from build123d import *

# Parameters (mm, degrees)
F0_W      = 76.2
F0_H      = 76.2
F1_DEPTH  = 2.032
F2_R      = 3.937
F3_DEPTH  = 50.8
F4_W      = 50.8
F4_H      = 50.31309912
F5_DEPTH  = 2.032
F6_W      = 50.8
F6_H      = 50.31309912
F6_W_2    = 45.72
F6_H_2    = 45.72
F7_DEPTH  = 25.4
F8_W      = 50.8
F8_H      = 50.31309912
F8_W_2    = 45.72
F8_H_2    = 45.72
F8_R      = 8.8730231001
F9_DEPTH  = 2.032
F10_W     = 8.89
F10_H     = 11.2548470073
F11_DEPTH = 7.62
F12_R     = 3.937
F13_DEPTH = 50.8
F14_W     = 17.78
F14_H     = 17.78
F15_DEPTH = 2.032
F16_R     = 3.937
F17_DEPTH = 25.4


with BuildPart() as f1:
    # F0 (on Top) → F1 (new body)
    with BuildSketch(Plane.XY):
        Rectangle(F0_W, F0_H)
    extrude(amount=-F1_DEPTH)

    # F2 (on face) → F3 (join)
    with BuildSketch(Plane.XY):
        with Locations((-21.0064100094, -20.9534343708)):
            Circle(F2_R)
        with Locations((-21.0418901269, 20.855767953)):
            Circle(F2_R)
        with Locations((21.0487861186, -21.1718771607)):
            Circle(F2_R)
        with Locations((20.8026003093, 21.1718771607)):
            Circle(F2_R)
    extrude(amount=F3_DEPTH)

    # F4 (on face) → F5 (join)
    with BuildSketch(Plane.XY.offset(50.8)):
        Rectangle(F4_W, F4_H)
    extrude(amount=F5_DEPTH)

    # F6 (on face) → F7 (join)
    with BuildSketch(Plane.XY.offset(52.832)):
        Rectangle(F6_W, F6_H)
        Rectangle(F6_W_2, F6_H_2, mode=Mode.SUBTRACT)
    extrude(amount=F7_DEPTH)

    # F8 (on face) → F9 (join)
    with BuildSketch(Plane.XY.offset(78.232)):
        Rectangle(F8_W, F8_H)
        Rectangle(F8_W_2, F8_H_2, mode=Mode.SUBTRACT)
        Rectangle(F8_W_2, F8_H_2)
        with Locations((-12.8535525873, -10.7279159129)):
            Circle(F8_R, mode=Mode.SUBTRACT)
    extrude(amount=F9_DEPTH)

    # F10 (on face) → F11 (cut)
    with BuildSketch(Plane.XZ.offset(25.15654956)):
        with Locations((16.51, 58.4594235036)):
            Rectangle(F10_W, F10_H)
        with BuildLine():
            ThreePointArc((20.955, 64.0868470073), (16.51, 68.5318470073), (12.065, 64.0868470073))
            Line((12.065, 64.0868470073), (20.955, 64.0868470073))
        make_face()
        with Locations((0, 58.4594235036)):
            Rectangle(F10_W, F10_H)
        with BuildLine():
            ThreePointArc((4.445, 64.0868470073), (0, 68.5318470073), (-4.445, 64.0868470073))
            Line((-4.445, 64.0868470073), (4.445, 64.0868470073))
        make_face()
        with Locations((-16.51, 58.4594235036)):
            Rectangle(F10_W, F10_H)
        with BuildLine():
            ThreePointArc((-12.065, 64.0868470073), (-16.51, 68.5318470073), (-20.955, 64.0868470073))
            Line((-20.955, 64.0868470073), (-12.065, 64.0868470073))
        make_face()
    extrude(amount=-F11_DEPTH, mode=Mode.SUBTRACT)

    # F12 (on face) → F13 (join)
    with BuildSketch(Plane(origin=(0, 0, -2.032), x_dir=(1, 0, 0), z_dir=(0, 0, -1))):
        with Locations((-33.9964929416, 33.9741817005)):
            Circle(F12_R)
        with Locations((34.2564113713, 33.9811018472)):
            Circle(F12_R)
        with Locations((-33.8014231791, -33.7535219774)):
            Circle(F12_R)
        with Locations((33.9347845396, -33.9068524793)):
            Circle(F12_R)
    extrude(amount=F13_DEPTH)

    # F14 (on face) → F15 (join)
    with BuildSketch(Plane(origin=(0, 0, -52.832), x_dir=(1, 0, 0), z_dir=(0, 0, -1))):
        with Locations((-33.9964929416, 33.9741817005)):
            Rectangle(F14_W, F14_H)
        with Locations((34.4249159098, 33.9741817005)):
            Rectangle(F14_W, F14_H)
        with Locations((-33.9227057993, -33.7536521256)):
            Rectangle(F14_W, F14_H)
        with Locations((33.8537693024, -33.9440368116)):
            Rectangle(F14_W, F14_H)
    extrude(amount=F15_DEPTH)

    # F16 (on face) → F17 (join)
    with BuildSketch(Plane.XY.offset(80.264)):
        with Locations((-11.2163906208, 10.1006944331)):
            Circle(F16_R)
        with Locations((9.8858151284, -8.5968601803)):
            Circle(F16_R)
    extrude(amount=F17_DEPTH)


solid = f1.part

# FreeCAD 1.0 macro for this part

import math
import FreeCAD as App
import Part
import Sketcher
Q = App.Units.Quantity


def add_polygon(sketch, points):
    """Adds a closed chain of lines whose ends are joined by coincident constraints."""
    first, n = sketch.GeometryCount, len(points)
    for a, b in zip(points, points[1:] + points[:1]):
        sketch.addGeometry(Part.LineSegment(App.Vector(*a, 0), App.Vector(*b, 0)), False)
    for i in range(n):
        sketch.addConstraint(Sketcher.Constraint("Coincident", first + i, 2, first + (i + 1) % n, 1))

doc = App.newDocument("Part")
params = doc.addObject("Spreadsheet::Sheet", "Params")
for row, (alias, value) in enumerate([
    ("sketch1_width", "3 in"),
    ("pad1_length", "0.08 in"),
    ("sketch2_diameter", "0.31 in"),
    ("pad2_length", "2 in"),
    ("sketch3_width", "2 in"),
    ("pad3_length", "0.08 in"),
    ("sketch4_width", "2 in"),
    ("sketch4_width2", "1.8 in"),
    ("pad4_length", "1 in"),
    ("sketch5_width", "2 in"),
    ("pad5_length", "0.08 in"),
    ("sketch6_radius", "0.175 in"),
    ("pocket1_length", "0.3 in"),
    ("sketch7_diameter", "0.31 in"),
    ("pad6_length", "2 in"),
    ("sketch8_width", "0.7 in"),
    ("pad7_length", "0.08 in"),
    ("sketch9_diameter", "0.31 in"),
    ("pad8_length", "1 in"),
], start=1):
    params.set(f"A{row}", alias)
    params.set(f"B{row}", "=" + value)
    params.setAlias(f"B{row}", alias)

body = doc.addObject("PartDesign::Body", "Body")

sketch1 = body.newObject("Sketcher::SketchObject", "Sketch")
sketch1.AttachmentSupport = (doc.getObject("XY_Plane"), [""])
sketch1.MapMode = "FlatFace"
add_polygon(sketch1, [(-38, 38), (-38, -38), (38, -38), (38, 38)])
sketch1.addConstraint(Sketcher.Constraint("Vertical", 0))
sketch1.addConstraint(Sketcher.Constraint("Horizontal", 1))
sketch1.addConstraint(Sketcher.Constraint("Vertical", 2))
sketch1.addConstraint(Sketcher.Constraint("Horizontal", 3))
sketch1.addConstraint(Sketcher.Constraint("Symmetric", 0, 2, 2, 2, -1, 1))
sketch1.addConstraint(Sketcher.Constraint("Equal", 3, 0))
sketch1.addConstraint(Sketcher.Constraint("DistanceX", 1, 1, 1, 2, Q("3 in")))
sketch1.setExpression("Constraints[10]", "Params.sketch1_width")
pad1 = body.newObject("PartDesign::Pad", "Pad")
pad1.Profile = sketch1
pad1.setExpression("Length", "Params.pad1_length")
pad1.Reversed = True

sketch2 = body.newObject("Sketcher::SketchObject", "Sketch001")
sketch2.AttachmentSupport = (doc.getObject("XY_Plane"), [""])
sketch2.MapMode = "FlatFace"
sketch2.addGeometry(Part.Circle(App.Vector(-21, -21, 0), App.Vector(0, 0, 1), 3.9), False)
sketch2.addGeometry(Part.Circle(App.Vector(-21, 20.9, 0), App.Vector(0, 0, 1), 3.9), False)
sketch2.addGeometry(Part.Circle(App.Vector(21, -21.2, 0), App.Vector(0, 0, 1), 3.9), False)
sketch2.addGeometry(Part.Circle(App.Vector(20.8, 21.2, 0), App.Vector(0, 0, 1), 3.9), False)
sketch2.addConstraint(Sketcher.Constraint("Equal", 0, 1))
sketch2.addConstraint(Sketcher.Constraint("Equal", 1, 2))
sketch2.addConstraint(Sketcher.Constraint("Equal", 2, 3))
sketch2.addConstraint(Sketcher.Constraint("Diameter", 0, Q("0.31 in")))
sketch2.addConstraint(Sketcher.Constraint("DistanceX", -1, 1, 3, 3, Q("0.819 in")))
sketch2.addConstraint(Sketcher.Constraint("DistanceY", 2, 3, 0, 3, Q("0.0086001 in")))
sketch2.addConstraint(Sketcher.Constraint("DistanceX", 0, 3, -1, 1, Q("21.00641 mm")))
sketch2.addConstraint(Sketcher.Constraint("DistanceX", 1, 3, -1, 1, Q("21.04189 mm")))
sketch2.addConstraint(Sketcher.Constraint("DistanceY", 1, 3, 3, 3, Q("0.316109 mm")))
sketch2.addConstraint(Sketcher.Constraint("DistanceY", 0, 3, 3, 3, Q("42.125312 mm")))
sketch2.addConstraint(Sketcher.Constraint("DistanceY", 0, 3, -1, 1, Q("20.953434 mm")))
sketch2.addConstraint(Sketcher.Constraint("DistanceX", -1, 1, 2, 3, Q("21.048786 mm")))
sketch2.setExpression("Constraints[3]", "Params.sketch2_diameter")
pad2 = body.newObject("PartDesign::Pad", "Pad001")
pad2.Profile = sketch2
pad2.setExpression("Length", "Params.pad2_length")

sketch3 = body.newObject("Sketcher::SketchObject", "Sketch002")
sketch3.AttachmentSupport = (doc.getObject("XY_Plane"), [""])
sketch3.MapMode = "FlatFace"
sketch3.AttachmentOffset = App.Placement(App.Vector(0, 0, 2 * 25.4), App.Rotation())
add_polygon(sketch3, [(-25, 25), (-25, -25), (25, -25), (25, 25)])
sketch3.addConstraint(Sketcher.Constraint("Vertical", 0))
sketch3.addConstraint(Sketcher.Constraint("Horizontal", 1))
sketch3.addConstraint(Sketcher.Constraint("Vertical", 2))
sketch3.addConstraint(Sketcher.Constraint("Horizontal", 3))
sketch3.addConstraint(Sketcher.Constraint("Symmetric", 0, 2, 2, 2, -1, 1))
sketch3.addConstraint(Sketcher.Constraint("DistanceX", 1, 1, 1, 2, Q("2 in")))
sketch3.addConstraint(Sketcher.Constraint("DistanceY", 0, 2, 0, 1, Q("50.313099 mm")))
sketch3.setExpression("Constraints[9]", "Params.sketch3_width")
pad3 = body.newObject("PartDesign::Pad", "Pad002")
pad3.Profile = sketch3
pad3.setExpression("Length", "Params.pad3_length")

sketch4 = body.newObject("Sketcher::SketchObject", "Sketch003")
sketch4.AttachmentSupport = (doc.getObject("XY_Plane"), [""])
sketch4.MapMode = "FlatFace"
sketch4.AttachmentOffset = App.Placement(App.Vector(0, 0, 2.08 * 25.4), App.Rotation())
add_polygon(sketch4, [(-25, 25), (-25, -25), (25, -25), (25, 25)])
add_polygon(sketch4, [(23, -23), (-23, -23), (-23, 23), (23, 23)])
sketch4.addConstraint(Sketcher.Constraint("Vertical", 0))
sketch4.addConstraint(Sketcher.Constraint("Horizontal", 1))
sketch4.addConstraint(Sketcher.Constraint("Vertical", 2))
sketch4.addConstraint(Sketcher.Constraint("Horizontal", 3))
sketch4.addConstraint(Sketcher.Constraint("Horizontal", 4))
sketch4.addConstraint(Sketcher.Constraint("Vertical", 5))
sketch4.addConstraint(Sketcher.Constraint("Horizontal", 6))
sketch4.addConstraint(Sketcher.Constraint("Vertical", 7))
sketch4.addConstraint(Sketcher.Constraint("Symmetric", 0, 2, 2, 2, -1, 1))
sketch4.addConstraint(Sketcher.Constraint("Symmetric", 4, 2, 6, 2, -1, 1))
sketch4.addConstraint(Sketcher.Constraint("Equal", 6, 5))
sketch4.addConstraint(Sketcher.Constraint("DistanceX", 1, 1, 1, 2, Q("2 in")))
sketch4.addConstraint(Sketcher.Constraint("DistanceX", 4, 2, 4, 1, Q("1.8 in")))
sketch4.addConstraint(Sketcher.Constraint("DistanceY", 0, 2, 0, 1, Q("50.313099 mm")))
sketch4.setExpression("Constraints[19]", "Params.sketch4_width")
sketch4.setExpression("Constraints[20]", "Params.sketch4_width2")
pad4 = body.newObject("PartDesign::Pad", "Pad003")
pad4.Profile = sketch4
pad4.setExpression("Length", "Params.pad4_length")

sketch5 = body.newObject("Sketcher::SketchObject", "Sketch004")
sketch5.AttachmentSupport = (doc.getObject("XY_Plane"), [""])
sketch5.MapMode = "FlatFace"
sketch5.AttachmentOffset = App.Placement(App.Vector(0, 0, 3.08 * 25.4), App.Rotation())
add_polygon(sketch5, [(-25, 25), (-25, -25), (25, -25), (25, 25)])
sketch5.addGeometry(Part.Circle(App.Vector(-13, -11, 0), App.Vector(0, 0, 1), 9), False)
sketch5.addConstraint(Sketcher.Constraint("Vertical", 0))
sketch5.addConstraint(Sketcher.Constraint("Horizontal", 1))
sketch5.addConstraint(Sketcher.Constraint("Vertical", 2))
sketch5.addConstraint(Sketcher.Constraint("Horizontal", 3))
sketch5.addConstraint(Sketcher.Constraint("Symmetric", 0, 2, 2, 2, -1, 1))
sketch5.addConstraint(Sketcher.Constraint("DistanceX", 1, 1, 1, 2, Q("2 in")))
sketch5.addConstraint(Sketcher.Constraint("Diameter", 4, Q("17.746046 mm")))
sketch5.addConstraint(Sketcher.Constraint("DistanceY", 0, 2, 0, 1, Q("50.313099 mm")))
sketch5.addConstraint(Sketcher.Constraint("DistanceX", 4, 3, -1, 1, Q("12.853553 mm")))
sketch5.addConstraint(Sketcher.Constraint("DistanceY", 4, 3, -1, 1, Q("10.727916 mm")))
sketch5.setExpression("Constraints[9]", "Params.sketch5_width")
pad5 = body.newObject("PartDesign::Pad", "Pad004")
pad5.Profile = sketch5
pad5.setExpression("Length", "Params.pad5_length")

sketch6 = body.newObject("Sketcher::SketchObject", "Sketch005")
sketch6.AttachmentSupport = (doc.getObject("XZ_Plane"), [""])
sketch6.MapMode = "FlatFace"
sketch6.AttachmentOffset = App.Placement(App.Vector(0, 0, 25.15655), App.Rotation())
sketch6.addGeometry(Part.LineSegment(App.Vector(12.1, 64.1, 0), App.Vector(12.1, 52.8, 0)), False)
sketch6.addGeometry(Part.LineSegment(App.Vector(12.1, 52.8, 0), App.Vector(21, 52.8, 0)), False)
sketch6.addGeometry(Part.LineSegment(App.Vector(21, 52.8, 0), App.Vector(21, 64.1, 0)), False)
sketch6.addGeometry(Part.ArcOfCircle(Part.Circle(App.Vector(16.5, 64.1, 0), App.Vector(0, 0, 1), 4.4), math.radians(0), math.radians(180)), False)
sketch6.addGeometry(Part.LineSegment(App.Vector(-4.4, 64.1, 0), App.Vector(-4.4, 52.8, 0)), False)
sketch6.addGeometry(Part.LineSegment(App.Vector(-4.4, 52.8, 0), App.Vector(4.4, 52.8, 0)), False)
sketch6.addGeometry(Part.LineSegment(App.Vector(4.4, 52.8, 0), App.Vector(4.4, 64.1, 0)), False)
sketch6.addGeometry(Part.ArcOfCircle(Part.Circle(App.Vector(0, 64.1, 0), App.Vector(0, 0, 1), 4.4), math.radians(0), math.radians(180)), False)
sketch6.addGeometry(Part.LineSegment(App.Vector(-21, 64.1, 0), App.Vector(-21, 52.8, 0)), False)
sketch6.addGeometry(Part.LineSegment(App.Vector(-21, 52.8, 0), App.Vector(-12.1, 52.8, 0)), False)
sketch6.addGeometry(Part.LineSegment(App.Vector(-12.1, 52.8, 0), App.Vector(-12.1, 64.1, 0)), False)
sketch6.addGeometry(Part.ArcOfCircle(Part.Circle(App.Vector(-16.5, 64.1, 0), App.Vector(0, 0, 1), 4.4), math.radians(0), math.radians(180)), False)
sketch6.addConstraint(Sketcher.Constraint("Coincident", 0, 2, 1, 1))
sketch6.addConstraint(Sketcher.Constraint("Coincident", 1, 2, 2, 1))
sketch6.addConstraint(Sketcher.Constraint("Tangent", 2, 2, 3, 1))
sketch6.addConstraint(Sketcher.Constraint("Tangent", 3, 2, 0, 1))
sketch6.addConstraint(Sketcher.Constraint("Coincident", 4, 2, 5, 1))
sketch6.addConstraint(Sketcher.Constraint("Coincident", 5, 2, 6, 1))
sketch6.addConstraint(Sketcher.Constraint("Tangent", 6, 2, 7, 1))
sketch6.addConstraint(Sketcher.Constraint("Tangent", 7, 2, 4, 1))
sketch6.addConstraint(Sketcher.Constraint("Coincident", 8, 2, 9, 1))
sketch6.addConstraint(Sketcher.Constraint("Coincident", 9, 2, 10, 1))
sketch6.addConstraint(Sketcher.Constraint("Tangent", 10, 2, 11, 1))
sketch6.addConstraint(Sketcher.Constraint("Tangent", 11, 2, 8, 1))
sketch6.addConstraint(Sketcher.Constraint("Vertical", 0))
sketch6.addConstraint(Sketcher.Constraint("Horizontal", 1))
sketch6.addConstraint(Sketcher.Constraint("Vertical", 2))
sketch6.addConstraint(Sketcher.Constraint("Vertical", 4))
sketch6.addConstraint(Sketcher.Constraint("Horizontal", 5))
sketch6.addConstraint(Sketcher.Constraint("Vertical", 6))
sketch6.addConstraint(Sketcher.Constraint("Vertical", 8))
sketch6.addConstraint(Sketcher.Constraint("Horizontal", 9))
sketch6.addConstraint(Sketcher.Constraint("Vertical", 10))
sketch6.addConstraint(Sketcher.Constraint("Equal", 3, 7))
sketch6.addConstraint(Sketcher.Constraint("Equal", 7, 11))
sketch6.addConstraint(Sketcher.Constraint("Symmetric", 3, 3, 11, 3, -2))
sketch6.addConstraint(Sketcher.Constraint("PointOnObject", 7, 3, -2))
sketch6.addConstraint(Sketcher.Constraint("Horizontal", 3, 3, 7, 3))
sketch6.addConstraint(Sketcher.Constraint("Horizontal", 1, 2, 4, 2))
sketch6.addConstraint(Sketcher.Constraint("Horizontal", 5, 2, 8, 2))
sketch6.addConstraint(Sketcher.Constraint("Radius", 3, Q("0.175 in")))
sketch6.addConstraint(Sketcher.Constraint("DistanceX", 8, 2, 5, 2, Q("1 in")))
sketch6.addConstraint(Sketcher.Constraint("DistanceY", -1, 1, 0, 2, Q("2.08 in")))
sketch6.addConstraint(Sketcher.Constraint("DistanceY", 0, 2, 0, 1, Q("11.254847 mm")))
sketch6.setExpression("Constraints[28]", "Params.sketch6_radius")
pocket1 = body.newObject("PartDesign::Pocket", "Pocket")
pocket1.Profile = sketch6
pocket1.setExpression("Length", "Params.pocket1_length")

sketch7 = body.newObject("Sketcher::SketchObject", "Sketch006")
sketch7.AttachmentSupport = (doc.getObject("XY_Plane"), [""])
sketch7.MapMode = "FlatFace"
sketch7.AttachmentOffset = App.Placement(App.Vector(0, 0, -0.08 * 25.4), App.Rotation())
sketch7.addGeometry(Part.Circle(App.Vector(-34, -34, 0), App.Vector(0, 0, 1), 3.9), False)
sketch7.addGeometry(Part.Circle(App.Vector(34.3, -34, 0), App.Vector(0, 0, 1), 3.9), False)
sketch7.addGeometry(Part.Circle(App.Vector(-33.8, 33.8, 0), App.Vector(0, 0, 1), 3.9), False)
sketch7.addGeometry(Part.Circle(App.Vector(33.9, 33.9, 0), App.Vector(0, 0, 1), 3.9), False)
sketch7.addConstraint(Sketcher.Constraint("Equal", 0, 1))
sketch7.addConstraint(Sketcher.Constraint("Equal", 1, 2))
sketch7.addConstraint(Sketcher.Constraint("Equal", 2, 3))
sketch7.addConstraint(Sketcher.Constraint("Diameter", 0, Q("0.31 in")))
sketch7.addConstraint(Sketcher.Constraint("DistanceY", 1, 3, -1, 1, Q("33.981102 mm")))
sketch7.addConstraint(Sketcher.Constraint("DistanceY", 0, 3, -1, 1, Q("33.974182 mm")))
sketch7.addConstraint(Sketcher.Constraint("DistanceX", -1, 1, 1, 3, Q("34.256411 mm")))
sketch7.addConstraint(Sketcher.Constraint("DistanceY", -1, 1, 2, 3, Q("33.753522 mm")))
sketch7.addConstraint(Sketcher.Constraint("DistanceX", 0, 3, 2, 3, Q("0.19507 mm")))
sketch7.addConstraint(Sketcher.Constraint("DistanceY", 2, 3, 3, 3, Q("0.153331 mm")))
sketch7.addConstraint(Sketcher.Constraint("DistanceX", 0, 3, -1, 1, Q("33.996493 mm")))
sketch7.addConstraint(Sketcher.Constraint("DistanceX", -1, 1, 3, 3, Q("33.934785 mm")))
sketch7.setExpression("Constraints[3]", "Params.sketch7_diameter")
pad6 = body.newObject("PartDesign::Pad", "Pad005")
pad6.Profile = sketch7
pad6.setExpression("Length", "Params.pad6_length")
pad6.Reversed = True

sketch8 = body.newObject("Sketcher::SketchObject", "Sketch007")
sketch8.AttachmentSupport = (doc.getObject("XY_Plane"), [""])
sketch8.MapMode = "FlatFace"
sketch8.AttachmentOffset = App.Placement(App.Vector(0, 0, -2.08 * 25.4), App.Rotation())
add_polygon(sketch8, [(-43, -43), (-43, -25), (-25, -25), (-25, -43)])
add_polygon(sketch8, [(26, -43), (26, -25), (43, -25), (43, -43)])
add_polygon(sketch8, [(-43, 25), (-43, 43), (-25, 43), (-25, 25)])
add_polygon(sketch8, [(25, 25), (25, 43), (43, 43), (43, 25)])
sketch8.addConstraint(Sketcher.Constraint("Vertical", 0))
sketch8.addConstraint(Sketcher.Constraint("Horizontal", 1))
sketch8.addConstraint(Sketcher.Constraint("Vertical", 2))
sketch8.addConstraint(Sketcher.Constraint("Horizontal", 3))
sketch8.addConstraint(Sketcher.Constraint("Vertical", 4))
sketch8.addConstraint(Sketcher.Constraint("Horizontal", 5))
sketch8.addConstraint(Sketcher.Constraint("Vertical", 6))
sketch8.addConstraint(Sketcher.Constraint("Horizontal", 7))
sketch8.addConstraint(Sketcher.Constraint("Vertical", 8))
sketch8.addConstraint(Sketcher.Constraint("Horizontal", 9))
sketch8.addConstraint(Sketcher.Constraint("Vertical", 10))
sketch8.addConstraint(Sketcher.Constraint("Horizontal", 11))
sketch8.addConstraint(Sketcher.Constraint("Vertical", 12))
sketch8.addConstraint(Sketcher.Constraint("Horizontal", 13))
sketch8.addConstraint(Sketcher.Constraint("Vertical", 14))
sketch8.addConstraint(Sketcher.Constraint("Horizontal", 15))
sketch8.addConstraint(Sketcher.Constraint("Horizontal", 1, 2, 4, 2))
sketch8.addConstraint(Sketcher.Constraint("Horizontal", 3, 2, 6, 2))
sketch8.addConstraint(Sketcher.Constraint("Equal", 3, 5))
sketch8.addConstraint(Sketcher.Constraint("Equal", 7, 9))
sketch8.addConstraint(Sketcher.Constraint("Equal", 11, 13))
sketch8.addConstraint(Sketcher.Constraint("Equal", 15, 0))
sketch8.addConstraint(Sketcher.Constraint("Equal", 6, 8))
sketch8.addConstraint(Sketcher.Constraint("Equal", 10, 12))
sketch8.addConstraint(Sketcher.Constraint("DistanceX", 1, 1, 1, 2, Q("0.7 in")))
sketch8.addConstraint(Sketcher.Constraint("DistanceY", 0, 2, -1, 1, Q("25.084182 mm")))
sketch8.addConstraint(Sketcher.Constraint("DistanceX", -1, 1, 12, 2, Q("24.963769 mm")))
sketch8.addConstraint(Sketcher.Constraint("DistanceX", 1, 2, 4, 2, Q("50.641409 mm")))
sketch8.addConstraint(Sketcher.Constraint("DistanceX", 8, 2, 4, 2, Q("68.347622 mm")))
sketch8.addConstraint(Sketcher.Constraint("DistanceY", 4, 2, 12, 2, Q("67.918219 mm")))
sketch8.addConstraint(Sketcher.Constraint("DistanceX", 0, 2, -1, 1, Q("42.886493 mm")))
sketch8.addConstraint(Sketcher.Constraint("DistanceY", -1, 1, 8, 2, Q("42.643652 mm")))
sketch8.setExpression("Constraints[40]", "Params.sketch8_width")
pad7 = body.newObject("PartDesign::Pad", "Pad006")
pad7.Profile = sketch8
pad7.setExpression("Length", "Params.pad7_length")
pad7.Reversed = True

sketch9 = body.newObject("Sketcher::SketchObject", "Sketch008")
sketch9.AttachmentSupport = (doc.getObject("XY_Plane"), [""])
sketch9.MapMode = "FlatFace"
sketch9.AttachmentOffset = App.Placement(App.Vector(0, 0, 3.16 * 25.4), App.Rotation())
sketch9.addGeometry(Part.Circle(App.Vector(-11.2, 10.1, 0), App.Vector(0, 0, 1), 3.9), False)
sketch9.addGeometry(Part.Circle(App.Vector(9.9, -8.6, 0), App.Vector(0, 0, 1), 3.9), False)
sketch9.addConstraint(Sketcher.Constraint("Equal", 0, 1))
sketch9.addConstraint(Sketcher.Constraint("Diameter", 0, Q("0.31 in")))
sketch9.addConstraint(Sketcher.Constraint("DistanceX", 0, 3, -1, 1, Q("11.216391 mm")))
sketch9.addConstraint(Sketcher.Constraint("DistanceY", 1, 3, -1, 1, Q("8.59686 mm")))
sketch9.addConstraint(Sketcher.Constraint("DistanceY", -1, 1, 0, 3, Q("10.100694 mm")))
sketch9.addConstraint(Sketcher.Constraint("DistanceX", -1, 1, 1, 3, Q("9.885815 mm")))
sketch9.setExpression("Constraints[1]", "Params.sketch9_diameter")
pad8 = body.newObject("PartDesign::Pad", "Pad007")
pad8.Profile = sketch9
pad8.setExpression("Length", "Params.pad8_length")

doc.recompute()
